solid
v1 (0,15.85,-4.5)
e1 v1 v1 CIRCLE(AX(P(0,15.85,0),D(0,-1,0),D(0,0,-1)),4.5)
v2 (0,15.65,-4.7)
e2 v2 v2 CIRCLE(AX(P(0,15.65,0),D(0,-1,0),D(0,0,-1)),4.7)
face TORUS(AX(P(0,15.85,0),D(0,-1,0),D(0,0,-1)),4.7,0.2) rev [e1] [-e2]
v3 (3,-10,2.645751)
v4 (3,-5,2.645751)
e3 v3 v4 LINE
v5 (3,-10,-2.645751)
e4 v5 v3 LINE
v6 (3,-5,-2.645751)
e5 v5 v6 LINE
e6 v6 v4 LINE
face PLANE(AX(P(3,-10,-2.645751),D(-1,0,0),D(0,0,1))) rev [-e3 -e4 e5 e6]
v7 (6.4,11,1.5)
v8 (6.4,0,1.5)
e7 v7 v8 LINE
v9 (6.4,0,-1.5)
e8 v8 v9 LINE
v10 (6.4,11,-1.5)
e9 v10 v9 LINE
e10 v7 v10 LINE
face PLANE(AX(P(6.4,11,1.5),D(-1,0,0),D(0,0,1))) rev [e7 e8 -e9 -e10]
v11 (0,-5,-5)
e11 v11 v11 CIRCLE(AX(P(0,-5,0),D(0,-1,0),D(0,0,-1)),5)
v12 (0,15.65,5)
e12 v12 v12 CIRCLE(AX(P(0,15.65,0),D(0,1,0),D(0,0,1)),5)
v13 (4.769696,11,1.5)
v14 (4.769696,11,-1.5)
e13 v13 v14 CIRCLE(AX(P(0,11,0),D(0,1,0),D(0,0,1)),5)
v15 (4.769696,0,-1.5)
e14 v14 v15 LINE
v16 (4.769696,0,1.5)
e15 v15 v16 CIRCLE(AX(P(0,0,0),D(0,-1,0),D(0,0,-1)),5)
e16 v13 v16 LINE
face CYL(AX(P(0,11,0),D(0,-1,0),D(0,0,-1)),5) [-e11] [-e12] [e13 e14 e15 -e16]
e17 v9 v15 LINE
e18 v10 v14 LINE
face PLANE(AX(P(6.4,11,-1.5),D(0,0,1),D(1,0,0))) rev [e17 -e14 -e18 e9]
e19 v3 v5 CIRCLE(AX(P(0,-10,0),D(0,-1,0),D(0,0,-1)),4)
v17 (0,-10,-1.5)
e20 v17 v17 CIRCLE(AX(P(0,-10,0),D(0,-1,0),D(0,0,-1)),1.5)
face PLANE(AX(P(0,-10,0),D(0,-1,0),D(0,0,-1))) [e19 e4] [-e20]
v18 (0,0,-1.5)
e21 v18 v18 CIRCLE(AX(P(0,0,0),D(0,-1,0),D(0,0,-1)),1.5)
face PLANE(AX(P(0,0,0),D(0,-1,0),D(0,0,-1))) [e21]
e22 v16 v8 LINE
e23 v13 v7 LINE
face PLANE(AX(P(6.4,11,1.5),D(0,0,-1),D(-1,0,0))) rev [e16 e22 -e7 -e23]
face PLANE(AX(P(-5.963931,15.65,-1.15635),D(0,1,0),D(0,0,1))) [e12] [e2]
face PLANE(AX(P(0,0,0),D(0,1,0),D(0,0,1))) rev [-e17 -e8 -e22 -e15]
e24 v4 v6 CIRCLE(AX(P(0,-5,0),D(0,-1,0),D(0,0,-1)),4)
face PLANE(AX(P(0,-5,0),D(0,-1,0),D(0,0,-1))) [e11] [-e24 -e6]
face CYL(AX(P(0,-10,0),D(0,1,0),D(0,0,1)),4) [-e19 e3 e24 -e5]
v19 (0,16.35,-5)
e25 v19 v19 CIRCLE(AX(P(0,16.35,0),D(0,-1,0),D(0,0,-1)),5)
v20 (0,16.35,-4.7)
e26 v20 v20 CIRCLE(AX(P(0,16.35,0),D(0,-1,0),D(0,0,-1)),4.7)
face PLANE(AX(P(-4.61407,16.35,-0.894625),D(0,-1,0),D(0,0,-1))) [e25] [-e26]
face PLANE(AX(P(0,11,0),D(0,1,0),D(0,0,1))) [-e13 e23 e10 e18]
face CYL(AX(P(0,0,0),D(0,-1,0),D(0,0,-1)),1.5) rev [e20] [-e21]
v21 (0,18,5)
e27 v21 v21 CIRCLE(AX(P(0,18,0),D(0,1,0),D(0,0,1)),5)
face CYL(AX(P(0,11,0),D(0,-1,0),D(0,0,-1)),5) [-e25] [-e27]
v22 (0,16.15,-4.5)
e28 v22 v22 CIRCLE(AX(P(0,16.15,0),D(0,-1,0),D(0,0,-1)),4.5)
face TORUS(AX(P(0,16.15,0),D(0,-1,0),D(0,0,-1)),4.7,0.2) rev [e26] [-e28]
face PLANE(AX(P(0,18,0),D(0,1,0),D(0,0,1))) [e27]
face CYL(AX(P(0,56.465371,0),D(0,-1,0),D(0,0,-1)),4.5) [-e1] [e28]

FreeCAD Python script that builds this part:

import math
import FreeCAD as App
import Part
import Sketcher
Q = App.Units.Quantity

doc = App.newDocument("Part")
body = doc.addObject("PartDesign::Body", "Body")

sketch1 = body.newObject("Sketcher::SketchObject", "Sketch")
sketch1.AttachmentSupport = (doc.getObject("XZ_Plane"), [""])
sketch1.MapMode = "FlatFace"
sketch1.addGeometry([
    Part.LineSegment(App.Vector(6.4, 1.5, 0), App.Vector(6.4, -1.5, 0)),
    Part.LineSegment(App.Vector(6.4, -1.5, 0), App.Vector(4.8, -1.5, 0)),
    Part.ArcOfCircle(Part.Circle(App.Vector(0, 0, 0), App.Vector(0, 0, 1), 5), math.radians(17), math.radians(343)),
    Part.LineSegment(App.Vector(4.8, 1.5, 0), App.Vector(6.4, 1.5, 0)),
], False)
sketch1.addConstraint([
    Sketcher.Constraint("Coincident", 0, 2, 1, 1),
    Sketcher.Constraint("Coincident", 1, 2, 2, 2),
    Sketcher.Constraint("Coincident", 2, 1, 3, 1),
    Sketcher.Constraint("Coincident", 3, 2, 0, 1),
    Sketcher.Constraint("Vertical", 0),
    Sketcher.Constraint("Horizontal", 1),
    Sketcher.Constraint("Horizontal", 3),
    Sketcher.Constraint("Coincident", 2, 3, -1, 1),
    Sketcher.Constraint("Vertical", 1, 2, 2, 1),
    Sketcher.Constraint("Radius", 2, Q("5 mm")),
    Sketcher.Constraint("DistanceY", 0, 2, 0, 1, Q("3 mm")),
    Sketcher.Constraint("DistanceX", -1, 1, 0, 2, Q("6.4 mm")),
])
pad1 = body.newObject("PartDesign::Pad", "Pad")
pad1.Profile = sketch1
pad1.Length = 11
pad1.Reversed = True

sketch2 = body.newObject("Sketcher::SketchObject", "Sketch001")
sketch2.AttachmentSupport = (doc.getObject("XZ_Plane"), [""])
sketch2.MapMode = "FlatFace"
sketch2.AttachmentOffset = App.Placement(App.Vector(0, 0, -11), App.Rotation())
sketch2.addGeometry(Part.Circle(App.Vector(0, 0, 0), App.Vector(0, 0, 1), 5), False)
sketch2.addConstraint([
    Sketcher.Constraint("Coincident", 0, 3, -1, 1),
    Sketcher.Constraint("Diameter", 0, Q("10 mm")),
])
pad2 = body.newObject("PartDesign::Pad", "Pad001")
pad2.Profile = sketch2
pad2.Length = 7
pad2.Reversed = True

sketch3 = body.newObject("Sketcher::SketchObject", "Sketch002")
sketch3.AttachmentSupport = (doc.getObject("XZ_Plane"), [""])
sketch3.MapMode = "FlatFace"
sketch3.AttachmentOffset = App.Placement(App.Vector(0, 0, 5), App.Rotation())
sketch3.addGeometry(Part.Circle(App.Vector(0, 0, 0), App.Vector(0, 0, 1), 5), False)
sketch3.addConstraint([
    Sketcher.Constraint("Coincident", 0, 3, -1, 1),
    Sketcher.Constraint("Diameter", 0, Q("10 mm")),
])
pad3 = body.newObject("PartDesign::Pad", "Pad002")
pad3.Profile = sketch3
pad3.Length = 5
pad3.Reversed = True

sketch4 = body.newObject("Sketcher::SketchObject", "Sketch003")
sketch4.AttachmentSupport = (doc.getObject("XZ_Plane"), [""])
sketch4.MapMode = "FlatFace"
sketch4.AttachmentOffset = App.Placement(App.Vector(0, 0, 5), App.Rotation())
sketch4.addGeometry(Part.Circle(App.Vector(0, 0, 0), App.Vector(0, 0, 1), 1.5), False)
sketch4.addConstraint([
    Sketcher.Constraint("Coincident", 0, 3, -1, 1),
    Sketcher.Constraint("Diameter", 0, Q("3 mm")),
])
pocket1 = body.newObject("PartDesign::Pocket", "Pocket")
pocket1.Profile = sketch4
pocket1.Length = 5

sketch5 = body.newObject("Sketcher::SketchObject", "Sketch004")
sketch5.Placement = App.Placement(App.Vector(2.625078, 11.422429, 0.508978), App.Rotation(App.Vector(-0.882960188, 0.437118578, -0.171197706), App.Vector(-0.42912679, -0.899403885, -0.083203663), App.Vector(-0.190345749, 0, 0.981717116), "ZXY"))
sketch5.addGeometry([
    Part.LineSegment(App.Vector(8.79, -1.21, 0), App.Vector(10.02, -0.61, 0)),
    Part.LineSegment(App.Vector(10.02, -0.61, 0), App.Vector(9.72, 0.02, 0)),
    Part.LineSegment(App.Vector(9.72, 0.02, 0), App.Vector(8.48, -0.58, 0)),
    Part.ArcOfCircle(Part.Circle(App.Vector(8.57, -0.76, 0), App.Vector(0, 0, 1), 0.2), math.radians(116), math.radians(206)),
    Part.LineSegment(App.Vector(8.39, -0.85, 0), App.Vector(8.52, -1.12, 0)),
    Part.ArcOfCircle(Part.Circle(App.Vector(8.7, -1.03, 0), App.Vector(0, 0, 1), 0.2), math.radians(-154), math.radians(-64)),
], False)
sketch5.addGeometry(Part.LineSegment(App.Vector(4.56, -3.26, 0), App.Vector(4.25, -2.63, 0)), True)
sketch5.addConstraint([
    Sketcher.Constraint("Coincident", 0, 2, 1, 1),
    Sketcher.Constraint("Coincident", 1, 2, 2, 1),
    Sketcher.Constraint("Tangent", 2, 2, 3, 1),
    Sketcher.Constraint("Tangent", 3, 2, 4, 1),
    Sketcher.Constraint("Tangent", 4, 2, 5, 1),
    Sketcher.Constraint("Tangent", 5, 2, 0, 1),
    Sketcher.Constraint("Equal", 3, 5),
    Sketcher.Constraint("Perpendicular", 0, 1),
    Sketcher.Constraint("Perpendicular", 1, 2),
    Sketcher.Constraint("Perpendicular", 2, 4),
    Sketcher.Constraint("Parallel", 4, 6),
    Sketcher.Constraint("Equal", 1, 6),
    Sketcher.Constraint("Radius", 3, Q("0.2 mm")),
    Sketcher.Constraint("Distance", 1, Q("0.7 mm")),
    Sketcher.Constraint("Distance", 0, Q("1.375 mm")),
    Sketcher.Constraint("DistanceY", 3, 2, -1, 1, Q("0.8463 mm")),
    Sketcher.Constraint("DistanceX", -1, 1, 4, 2, Q("8.518802 mm")),
    Sketcher.Constraint("DistanceY", 5, 3, 2, 2, Q("0.449702 mm")),
    Sketcher.Constraint("DistanceX", 6, 1, 5, 2, Q("4.227198 mm")),
    Sketcher.Constraint("DistanceY", 6, 1, 5, 3, Q("2.234338 mm")),
])
groove = body.newObject("PartDesign::Groove", "Groove")
groove.Profile = sketch5
groove.ReferenceAxis = (sketch5, ["Axis0"])
groove.Angle = 360

sketch6 = body.newObject("Sketcher::SketchObject", "Sketch005")
sketch6.AttachmentSupport = (doc.getObject("XZ_Plane"), [""])
sketch6.MapMode = "FlatFace"
sketch6.AttachmentOffset = App.Placement(App.Vector(0, 0, 10), App.Rotation())
sketch6.addGeometry([
    Part.LineSegment(App.Vector(3, -2.6, 0), App.Vector(3, 2.6, 0)),
    Part.ArcOfCircle(Part.Circle(App.Vector(0, 0, 0), App.Vector(0, 0, 1), 4), math.radians(41), math.radians(319)),
    Part.Circle(App.Vector(0, 0, 0), App.Vector(0, 0, 1), 1.5),
], False)
sketch6.addConstraint([
    Sketcher.Constraint("Coincident", 0, 1, 1, 2),
    Sketcher.Constraint("Coincident", 1, 1, 0, 2),
    Sketcher.Constraint("Vertical", 0),
    Sketcher.Constraint("Coincident", 1, 3, -1, 1),
    Sketcher.Constraint("Coincident", 2, 3, -1, 1),
    Sketcher.Constraint("Diameter", 2, Q("3 mm")),
    Sketcher.Constraint("Radius", 1, Q("4 mm")),
    Sketcher.Constraint("DistanceX", -1, 1, 0, 1, Q("3 mm")),
])
pad4 = body.newObject("PartDesign::Pad", "Pad003")
pad4.Profile = sketch6
pad4.Length = 5
pad4.Reversed = True

doc.recompute()
